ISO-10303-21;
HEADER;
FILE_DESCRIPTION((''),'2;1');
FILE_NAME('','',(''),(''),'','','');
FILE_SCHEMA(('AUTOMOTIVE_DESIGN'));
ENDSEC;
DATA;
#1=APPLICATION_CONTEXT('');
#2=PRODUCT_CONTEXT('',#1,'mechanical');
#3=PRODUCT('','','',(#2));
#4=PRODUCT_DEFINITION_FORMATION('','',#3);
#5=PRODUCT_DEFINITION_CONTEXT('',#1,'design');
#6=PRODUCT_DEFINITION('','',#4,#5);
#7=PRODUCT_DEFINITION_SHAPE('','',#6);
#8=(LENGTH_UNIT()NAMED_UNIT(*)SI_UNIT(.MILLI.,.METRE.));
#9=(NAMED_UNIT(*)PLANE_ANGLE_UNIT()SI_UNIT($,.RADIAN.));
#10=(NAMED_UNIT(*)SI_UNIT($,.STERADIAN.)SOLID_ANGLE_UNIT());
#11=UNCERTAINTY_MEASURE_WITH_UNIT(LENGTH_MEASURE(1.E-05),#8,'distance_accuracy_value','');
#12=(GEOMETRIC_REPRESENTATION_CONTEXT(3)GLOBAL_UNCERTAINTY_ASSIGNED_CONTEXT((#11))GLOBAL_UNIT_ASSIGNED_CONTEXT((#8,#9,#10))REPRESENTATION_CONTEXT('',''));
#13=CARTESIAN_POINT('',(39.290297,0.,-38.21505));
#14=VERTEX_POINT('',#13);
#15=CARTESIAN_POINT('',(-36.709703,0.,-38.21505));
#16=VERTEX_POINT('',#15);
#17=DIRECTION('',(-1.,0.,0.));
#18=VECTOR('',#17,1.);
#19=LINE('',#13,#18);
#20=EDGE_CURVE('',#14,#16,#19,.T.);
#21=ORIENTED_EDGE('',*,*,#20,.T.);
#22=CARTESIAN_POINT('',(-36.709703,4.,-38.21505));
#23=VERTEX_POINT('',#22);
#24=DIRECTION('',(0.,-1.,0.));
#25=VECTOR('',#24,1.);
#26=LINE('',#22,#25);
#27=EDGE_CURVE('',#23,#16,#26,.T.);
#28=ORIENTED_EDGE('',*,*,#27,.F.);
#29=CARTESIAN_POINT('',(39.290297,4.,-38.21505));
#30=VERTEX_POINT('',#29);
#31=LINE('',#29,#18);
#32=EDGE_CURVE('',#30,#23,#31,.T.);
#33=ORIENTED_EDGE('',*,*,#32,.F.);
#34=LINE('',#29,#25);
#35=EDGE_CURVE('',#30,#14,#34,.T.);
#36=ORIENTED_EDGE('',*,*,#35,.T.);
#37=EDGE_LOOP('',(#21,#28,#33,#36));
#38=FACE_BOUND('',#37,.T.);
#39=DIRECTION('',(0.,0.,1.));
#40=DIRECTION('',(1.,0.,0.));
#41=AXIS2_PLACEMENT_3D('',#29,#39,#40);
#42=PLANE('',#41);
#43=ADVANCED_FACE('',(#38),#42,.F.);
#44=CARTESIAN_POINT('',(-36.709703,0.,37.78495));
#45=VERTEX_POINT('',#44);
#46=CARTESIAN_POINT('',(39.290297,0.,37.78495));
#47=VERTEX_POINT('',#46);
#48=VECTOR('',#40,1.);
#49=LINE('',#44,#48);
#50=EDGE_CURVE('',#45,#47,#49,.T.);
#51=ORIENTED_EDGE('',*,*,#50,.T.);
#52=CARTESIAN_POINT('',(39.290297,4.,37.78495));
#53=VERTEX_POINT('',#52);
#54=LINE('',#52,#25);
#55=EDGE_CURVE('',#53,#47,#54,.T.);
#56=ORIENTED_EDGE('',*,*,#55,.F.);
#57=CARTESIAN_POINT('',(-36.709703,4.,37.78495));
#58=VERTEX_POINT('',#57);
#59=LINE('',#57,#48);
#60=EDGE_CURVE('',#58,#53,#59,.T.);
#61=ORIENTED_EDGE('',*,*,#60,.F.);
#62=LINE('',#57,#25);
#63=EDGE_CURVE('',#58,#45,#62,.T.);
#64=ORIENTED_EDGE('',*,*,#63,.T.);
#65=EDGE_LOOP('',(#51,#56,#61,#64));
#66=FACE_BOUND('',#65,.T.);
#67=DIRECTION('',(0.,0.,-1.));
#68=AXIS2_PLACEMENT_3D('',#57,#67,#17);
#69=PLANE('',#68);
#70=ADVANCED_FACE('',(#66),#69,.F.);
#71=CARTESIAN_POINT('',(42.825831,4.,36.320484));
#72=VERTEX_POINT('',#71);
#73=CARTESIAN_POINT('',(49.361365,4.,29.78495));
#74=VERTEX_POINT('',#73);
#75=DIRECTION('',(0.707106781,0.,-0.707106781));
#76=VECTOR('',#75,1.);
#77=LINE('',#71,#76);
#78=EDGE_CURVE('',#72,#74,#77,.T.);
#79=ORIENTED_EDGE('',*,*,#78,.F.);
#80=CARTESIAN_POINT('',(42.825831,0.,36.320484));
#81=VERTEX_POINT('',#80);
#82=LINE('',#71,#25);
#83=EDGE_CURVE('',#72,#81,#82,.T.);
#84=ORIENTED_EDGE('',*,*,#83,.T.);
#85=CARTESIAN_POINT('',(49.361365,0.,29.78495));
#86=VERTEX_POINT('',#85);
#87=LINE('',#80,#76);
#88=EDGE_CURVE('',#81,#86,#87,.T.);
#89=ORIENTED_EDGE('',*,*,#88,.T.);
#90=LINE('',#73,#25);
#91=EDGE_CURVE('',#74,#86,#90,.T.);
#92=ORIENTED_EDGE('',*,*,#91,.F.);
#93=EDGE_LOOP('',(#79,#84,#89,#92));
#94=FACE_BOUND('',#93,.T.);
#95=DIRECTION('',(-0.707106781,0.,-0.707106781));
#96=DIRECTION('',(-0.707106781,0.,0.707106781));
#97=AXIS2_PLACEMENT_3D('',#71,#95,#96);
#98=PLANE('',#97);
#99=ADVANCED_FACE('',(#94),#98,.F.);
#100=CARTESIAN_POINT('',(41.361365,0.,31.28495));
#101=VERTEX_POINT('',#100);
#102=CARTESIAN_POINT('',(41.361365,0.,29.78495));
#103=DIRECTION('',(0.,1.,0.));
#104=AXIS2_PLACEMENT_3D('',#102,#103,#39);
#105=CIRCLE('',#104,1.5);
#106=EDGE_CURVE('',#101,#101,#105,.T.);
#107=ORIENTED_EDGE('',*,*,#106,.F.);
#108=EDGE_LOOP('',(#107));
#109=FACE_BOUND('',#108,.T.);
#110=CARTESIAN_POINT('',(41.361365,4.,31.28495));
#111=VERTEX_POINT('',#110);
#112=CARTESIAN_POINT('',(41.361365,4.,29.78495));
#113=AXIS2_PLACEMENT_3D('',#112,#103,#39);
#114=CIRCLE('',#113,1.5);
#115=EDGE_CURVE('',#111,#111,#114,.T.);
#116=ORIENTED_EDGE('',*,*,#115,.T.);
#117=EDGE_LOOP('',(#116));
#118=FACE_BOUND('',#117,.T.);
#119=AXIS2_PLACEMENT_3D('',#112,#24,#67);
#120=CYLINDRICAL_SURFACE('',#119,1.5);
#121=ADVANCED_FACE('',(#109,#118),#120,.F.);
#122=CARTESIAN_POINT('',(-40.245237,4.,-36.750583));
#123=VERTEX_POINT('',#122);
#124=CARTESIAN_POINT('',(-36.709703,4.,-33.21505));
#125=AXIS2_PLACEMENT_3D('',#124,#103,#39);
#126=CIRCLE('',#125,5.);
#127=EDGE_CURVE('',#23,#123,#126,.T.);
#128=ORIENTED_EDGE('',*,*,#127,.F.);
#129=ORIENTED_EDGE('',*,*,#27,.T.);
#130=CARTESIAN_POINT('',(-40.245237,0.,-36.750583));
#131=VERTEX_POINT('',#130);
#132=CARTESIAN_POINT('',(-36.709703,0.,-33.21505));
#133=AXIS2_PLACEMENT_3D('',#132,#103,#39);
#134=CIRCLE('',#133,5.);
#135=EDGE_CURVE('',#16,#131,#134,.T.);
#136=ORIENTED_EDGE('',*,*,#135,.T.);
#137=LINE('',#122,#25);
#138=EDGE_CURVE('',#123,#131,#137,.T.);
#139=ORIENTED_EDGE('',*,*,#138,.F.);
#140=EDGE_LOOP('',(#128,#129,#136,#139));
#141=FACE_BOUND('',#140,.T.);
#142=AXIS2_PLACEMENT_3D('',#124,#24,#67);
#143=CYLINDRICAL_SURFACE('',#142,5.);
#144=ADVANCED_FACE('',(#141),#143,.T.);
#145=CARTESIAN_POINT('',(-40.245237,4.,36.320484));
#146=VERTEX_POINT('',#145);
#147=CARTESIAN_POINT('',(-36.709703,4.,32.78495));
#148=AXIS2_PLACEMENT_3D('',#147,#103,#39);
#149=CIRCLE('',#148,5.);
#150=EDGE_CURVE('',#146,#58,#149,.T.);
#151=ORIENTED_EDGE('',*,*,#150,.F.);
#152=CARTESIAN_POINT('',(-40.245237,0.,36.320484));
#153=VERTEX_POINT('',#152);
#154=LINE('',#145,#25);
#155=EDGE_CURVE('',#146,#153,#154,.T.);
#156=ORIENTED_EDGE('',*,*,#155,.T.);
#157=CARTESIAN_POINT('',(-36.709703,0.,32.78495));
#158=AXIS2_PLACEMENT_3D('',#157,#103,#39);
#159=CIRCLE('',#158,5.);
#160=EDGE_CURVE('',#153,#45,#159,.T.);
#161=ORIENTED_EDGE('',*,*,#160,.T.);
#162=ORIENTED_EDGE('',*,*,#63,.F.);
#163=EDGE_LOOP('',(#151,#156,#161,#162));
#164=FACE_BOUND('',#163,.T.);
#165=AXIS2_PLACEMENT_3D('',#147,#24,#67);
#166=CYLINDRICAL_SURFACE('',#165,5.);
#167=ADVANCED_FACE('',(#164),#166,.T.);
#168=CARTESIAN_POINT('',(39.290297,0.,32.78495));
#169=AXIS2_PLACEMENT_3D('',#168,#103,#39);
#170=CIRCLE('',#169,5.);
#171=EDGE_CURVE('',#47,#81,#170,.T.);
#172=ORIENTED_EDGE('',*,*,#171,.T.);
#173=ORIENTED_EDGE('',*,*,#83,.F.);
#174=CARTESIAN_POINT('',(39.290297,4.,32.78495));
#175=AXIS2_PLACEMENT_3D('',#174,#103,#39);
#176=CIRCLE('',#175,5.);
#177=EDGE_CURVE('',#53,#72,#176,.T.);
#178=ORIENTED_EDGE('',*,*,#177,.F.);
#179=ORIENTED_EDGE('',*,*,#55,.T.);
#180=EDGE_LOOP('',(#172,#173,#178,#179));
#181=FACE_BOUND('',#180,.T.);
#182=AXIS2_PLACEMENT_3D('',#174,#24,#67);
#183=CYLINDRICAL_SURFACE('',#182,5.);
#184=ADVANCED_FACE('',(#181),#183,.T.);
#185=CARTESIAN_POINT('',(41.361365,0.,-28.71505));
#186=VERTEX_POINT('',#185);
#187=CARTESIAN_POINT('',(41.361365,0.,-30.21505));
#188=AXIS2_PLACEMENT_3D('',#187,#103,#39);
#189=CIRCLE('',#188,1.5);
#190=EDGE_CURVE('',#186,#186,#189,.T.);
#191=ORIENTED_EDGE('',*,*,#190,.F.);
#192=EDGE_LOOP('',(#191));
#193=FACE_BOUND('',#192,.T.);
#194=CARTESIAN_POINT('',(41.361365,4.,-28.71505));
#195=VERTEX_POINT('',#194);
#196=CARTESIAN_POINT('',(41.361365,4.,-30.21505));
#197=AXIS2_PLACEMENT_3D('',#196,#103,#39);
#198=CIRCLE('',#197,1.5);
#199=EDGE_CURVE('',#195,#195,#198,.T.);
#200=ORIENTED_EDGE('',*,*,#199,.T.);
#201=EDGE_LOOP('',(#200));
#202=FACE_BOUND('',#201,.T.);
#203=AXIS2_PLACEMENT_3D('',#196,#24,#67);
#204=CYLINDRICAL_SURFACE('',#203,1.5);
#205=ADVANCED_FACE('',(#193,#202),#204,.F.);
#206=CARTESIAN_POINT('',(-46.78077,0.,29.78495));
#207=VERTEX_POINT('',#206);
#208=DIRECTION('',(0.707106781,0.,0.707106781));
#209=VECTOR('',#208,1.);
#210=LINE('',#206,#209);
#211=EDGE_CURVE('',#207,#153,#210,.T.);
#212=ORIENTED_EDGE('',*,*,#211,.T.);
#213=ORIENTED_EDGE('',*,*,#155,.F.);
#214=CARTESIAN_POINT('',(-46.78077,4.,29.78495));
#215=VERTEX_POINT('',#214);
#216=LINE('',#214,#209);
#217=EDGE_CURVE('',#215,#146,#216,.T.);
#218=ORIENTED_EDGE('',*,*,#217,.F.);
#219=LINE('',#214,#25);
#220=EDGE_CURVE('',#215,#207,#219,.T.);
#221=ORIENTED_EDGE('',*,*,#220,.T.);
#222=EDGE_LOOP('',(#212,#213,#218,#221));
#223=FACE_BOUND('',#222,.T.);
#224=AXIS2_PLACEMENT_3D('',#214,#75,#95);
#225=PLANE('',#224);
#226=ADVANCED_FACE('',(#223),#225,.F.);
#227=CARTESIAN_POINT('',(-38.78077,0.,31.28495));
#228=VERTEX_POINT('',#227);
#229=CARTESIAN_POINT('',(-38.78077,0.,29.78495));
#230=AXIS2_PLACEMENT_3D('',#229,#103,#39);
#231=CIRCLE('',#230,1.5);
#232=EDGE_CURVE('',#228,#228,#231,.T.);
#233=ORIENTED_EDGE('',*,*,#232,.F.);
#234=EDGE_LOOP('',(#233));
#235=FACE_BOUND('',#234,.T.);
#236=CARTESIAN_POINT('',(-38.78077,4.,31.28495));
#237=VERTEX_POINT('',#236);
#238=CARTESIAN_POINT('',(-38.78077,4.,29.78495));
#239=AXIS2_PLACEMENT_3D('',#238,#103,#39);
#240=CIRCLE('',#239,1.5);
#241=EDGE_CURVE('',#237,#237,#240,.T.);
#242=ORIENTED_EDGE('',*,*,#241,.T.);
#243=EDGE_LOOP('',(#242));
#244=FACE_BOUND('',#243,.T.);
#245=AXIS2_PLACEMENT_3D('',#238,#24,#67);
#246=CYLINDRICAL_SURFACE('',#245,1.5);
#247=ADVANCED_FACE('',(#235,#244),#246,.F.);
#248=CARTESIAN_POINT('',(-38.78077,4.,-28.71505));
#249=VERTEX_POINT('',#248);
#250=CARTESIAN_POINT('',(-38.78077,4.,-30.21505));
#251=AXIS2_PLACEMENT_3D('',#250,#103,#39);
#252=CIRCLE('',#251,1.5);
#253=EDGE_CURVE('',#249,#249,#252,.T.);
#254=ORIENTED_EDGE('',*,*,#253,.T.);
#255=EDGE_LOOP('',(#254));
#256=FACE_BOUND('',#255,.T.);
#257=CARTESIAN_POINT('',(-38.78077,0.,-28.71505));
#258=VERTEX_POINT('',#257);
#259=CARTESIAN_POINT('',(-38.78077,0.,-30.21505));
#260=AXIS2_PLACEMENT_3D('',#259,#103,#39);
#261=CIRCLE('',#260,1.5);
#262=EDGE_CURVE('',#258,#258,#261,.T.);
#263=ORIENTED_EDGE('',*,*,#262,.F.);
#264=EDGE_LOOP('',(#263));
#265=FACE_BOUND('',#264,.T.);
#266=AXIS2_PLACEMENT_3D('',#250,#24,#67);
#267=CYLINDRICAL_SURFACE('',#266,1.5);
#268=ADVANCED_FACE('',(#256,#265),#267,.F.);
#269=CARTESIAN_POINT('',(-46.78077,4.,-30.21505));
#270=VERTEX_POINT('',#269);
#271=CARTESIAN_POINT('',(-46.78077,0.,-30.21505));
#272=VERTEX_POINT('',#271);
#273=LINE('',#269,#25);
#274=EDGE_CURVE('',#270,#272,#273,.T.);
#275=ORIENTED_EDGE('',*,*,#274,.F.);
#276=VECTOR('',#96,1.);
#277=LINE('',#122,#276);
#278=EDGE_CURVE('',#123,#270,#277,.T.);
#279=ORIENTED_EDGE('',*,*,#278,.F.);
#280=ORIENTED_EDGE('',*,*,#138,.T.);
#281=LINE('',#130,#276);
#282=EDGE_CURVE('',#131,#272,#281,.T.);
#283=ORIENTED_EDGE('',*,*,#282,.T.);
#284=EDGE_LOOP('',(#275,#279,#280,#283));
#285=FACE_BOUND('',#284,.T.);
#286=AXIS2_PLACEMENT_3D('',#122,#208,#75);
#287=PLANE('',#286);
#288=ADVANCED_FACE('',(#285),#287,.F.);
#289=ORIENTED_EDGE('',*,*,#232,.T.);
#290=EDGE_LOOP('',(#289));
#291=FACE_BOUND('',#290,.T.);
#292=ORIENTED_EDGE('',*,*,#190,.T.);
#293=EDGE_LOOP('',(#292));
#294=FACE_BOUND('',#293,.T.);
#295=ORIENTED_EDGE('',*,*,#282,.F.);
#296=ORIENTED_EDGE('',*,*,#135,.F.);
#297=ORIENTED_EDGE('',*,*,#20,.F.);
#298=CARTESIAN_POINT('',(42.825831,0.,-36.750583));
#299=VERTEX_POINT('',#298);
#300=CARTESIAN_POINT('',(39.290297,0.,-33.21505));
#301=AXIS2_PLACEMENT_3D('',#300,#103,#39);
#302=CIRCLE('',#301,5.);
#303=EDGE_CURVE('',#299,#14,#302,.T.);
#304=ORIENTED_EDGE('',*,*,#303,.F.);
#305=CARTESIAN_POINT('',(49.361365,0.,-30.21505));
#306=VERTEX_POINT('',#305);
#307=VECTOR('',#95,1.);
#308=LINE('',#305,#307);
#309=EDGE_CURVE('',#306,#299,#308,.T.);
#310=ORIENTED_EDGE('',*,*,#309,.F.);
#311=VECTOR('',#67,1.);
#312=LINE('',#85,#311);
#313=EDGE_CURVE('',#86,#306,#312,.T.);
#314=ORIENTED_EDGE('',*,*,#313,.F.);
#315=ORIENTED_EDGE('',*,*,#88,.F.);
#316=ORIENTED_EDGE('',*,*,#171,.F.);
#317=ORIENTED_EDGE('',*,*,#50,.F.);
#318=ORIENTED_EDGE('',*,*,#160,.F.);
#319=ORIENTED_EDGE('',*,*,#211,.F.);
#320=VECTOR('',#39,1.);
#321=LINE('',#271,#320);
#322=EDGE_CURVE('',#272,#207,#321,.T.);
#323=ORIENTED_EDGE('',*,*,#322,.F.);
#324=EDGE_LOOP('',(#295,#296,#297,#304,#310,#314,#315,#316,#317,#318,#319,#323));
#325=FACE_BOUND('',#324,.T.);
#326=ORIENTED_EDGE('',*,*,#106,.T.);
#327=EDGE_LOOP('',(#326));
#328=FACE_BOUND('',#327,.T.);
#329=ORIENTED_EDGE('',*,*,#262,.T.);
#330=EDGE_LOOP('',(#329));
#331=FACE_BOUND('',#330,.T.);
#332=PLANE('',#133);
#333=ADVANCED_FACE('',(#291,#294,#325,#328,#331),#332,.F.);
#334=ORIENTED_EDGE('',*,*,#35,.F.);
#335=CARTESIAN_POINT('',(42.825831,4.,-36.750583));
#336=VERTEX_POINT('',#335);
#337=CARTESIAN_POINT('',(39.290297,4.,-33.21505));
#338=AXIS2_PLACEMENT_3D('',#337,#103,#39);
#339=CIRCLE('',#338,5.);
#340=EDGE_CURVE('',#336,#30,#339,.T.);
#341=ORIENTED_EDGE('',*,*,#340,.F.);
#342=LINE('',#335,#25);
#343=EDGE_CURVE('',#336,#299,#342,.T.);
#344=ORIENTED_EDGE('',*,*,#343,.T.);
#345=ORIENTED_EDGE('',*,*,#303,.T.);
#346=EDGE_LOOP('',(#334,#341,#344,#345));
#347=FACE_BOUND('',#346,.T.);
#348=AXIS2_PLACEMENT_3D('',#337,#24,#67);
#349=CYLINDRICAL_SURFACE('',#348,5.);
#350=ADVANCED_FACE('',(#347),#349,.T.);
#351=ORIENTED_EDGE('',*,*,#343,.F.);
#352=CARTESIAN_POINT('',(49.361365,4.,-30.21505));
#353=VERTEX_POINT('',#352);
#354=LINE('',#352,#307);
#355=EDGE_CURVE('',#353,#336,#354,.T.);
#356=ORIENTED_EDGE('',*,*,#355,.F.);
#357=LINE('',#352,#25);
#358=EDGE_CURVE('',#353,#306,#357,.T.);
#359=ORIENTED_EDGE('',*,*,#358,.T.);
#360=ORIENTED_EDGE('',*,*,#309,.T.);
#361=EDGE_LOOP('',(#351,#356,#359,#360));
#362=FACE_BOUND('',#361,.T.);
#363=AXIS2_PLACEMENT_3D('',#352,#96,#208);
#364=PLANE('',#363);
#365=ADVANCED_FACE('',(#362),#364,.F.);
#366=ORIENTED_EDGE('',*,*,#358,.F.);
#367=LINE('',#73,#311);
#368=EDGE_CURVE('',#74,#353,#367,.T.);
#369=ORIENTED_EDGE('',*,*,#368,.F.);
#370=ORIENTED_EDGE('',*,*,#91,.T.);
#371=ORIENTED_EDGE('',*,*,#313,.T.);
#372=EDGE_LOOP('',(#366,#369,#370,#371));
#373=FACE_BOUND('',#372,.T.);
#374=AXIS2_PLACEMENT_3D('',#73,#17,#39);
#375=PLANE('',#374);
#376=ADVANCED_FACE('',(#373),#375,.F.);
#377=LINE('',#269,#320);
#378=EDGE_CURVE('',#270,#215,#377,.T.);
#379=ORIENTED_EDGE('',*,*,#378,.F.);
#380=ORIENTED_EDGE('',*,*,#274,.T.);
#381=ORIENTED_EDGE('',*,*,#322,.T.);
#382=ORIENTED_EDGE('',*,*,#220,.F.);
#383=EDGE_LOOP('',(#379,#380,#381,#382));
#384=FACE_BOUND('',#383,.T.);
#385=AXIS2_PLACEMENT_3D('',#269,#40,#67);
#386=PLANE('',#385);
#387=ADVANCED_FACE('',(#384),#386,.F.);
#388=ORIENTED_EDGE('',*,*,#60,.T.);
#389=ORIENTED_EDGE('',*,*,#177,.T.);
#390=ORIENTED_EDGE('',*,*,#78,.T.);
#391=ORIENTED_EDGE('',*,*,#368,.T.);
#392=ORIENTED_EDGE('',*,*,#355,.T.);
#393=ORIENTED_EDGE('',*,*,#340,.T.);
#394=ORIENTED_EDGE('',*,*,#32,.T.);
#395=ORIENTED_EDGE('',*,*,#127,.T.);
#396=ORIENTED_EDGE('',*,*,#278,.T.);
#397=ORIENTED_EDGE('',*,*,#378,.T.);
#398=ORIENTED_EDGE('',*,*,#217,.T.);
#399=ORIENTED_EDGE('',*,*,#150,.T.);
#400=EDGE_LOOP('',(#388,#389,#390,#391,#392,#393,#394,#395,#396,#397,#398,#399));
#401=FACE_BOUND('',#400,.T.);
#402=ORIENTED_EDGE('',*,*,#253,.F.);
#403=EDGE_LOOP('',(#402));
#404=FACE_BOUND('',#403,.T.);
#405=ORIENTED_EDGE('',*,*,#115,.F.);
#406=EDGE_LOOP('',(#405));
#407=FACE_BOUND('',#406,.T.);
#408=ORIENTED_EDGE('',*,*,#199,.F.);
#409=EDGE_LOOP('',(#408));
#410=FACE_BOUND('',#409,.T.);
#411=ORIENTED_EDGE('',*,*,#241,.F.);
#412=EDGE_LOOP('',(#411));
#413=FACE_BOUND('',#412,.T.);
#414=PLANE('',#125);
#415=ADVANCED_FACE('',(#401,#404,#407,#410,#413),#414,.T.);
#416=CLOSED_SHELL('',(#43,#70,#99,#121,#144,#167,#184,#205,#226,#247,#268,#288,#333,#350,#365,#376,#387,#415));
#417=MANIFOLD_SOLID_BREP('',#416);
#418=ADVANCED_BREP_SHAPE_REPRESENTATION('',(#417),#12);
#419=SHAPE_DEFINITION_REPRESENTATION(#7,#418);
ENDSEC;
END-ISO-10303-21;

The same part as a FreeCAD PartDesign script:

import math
import FreeCAD as App
import Part
import Sketcher
from FreeCAD import Vector
Q = App.Units.Quantity

doc = App.newDocument("Part")
body = doc.addObject("PartDesign::Body", "Body")

# Sketch on XZ plane
sketch1 = doc.addObject("Sketcher::SketchObject", "Sketch")
body.addObject(sketch1)
sketch1.AttachmentSupport = (doc.XZ_Plane, [""])
sketch1.MapMode = "FlatFace"
sketch1.addGeometry([
    Part.LineSegment(Vector(-40.2, -36.8, 0), Vector(-46.8, -30.2, 0)),  # 0
    Part.LineSegment(Vector(-46.8, -30.2, 0), Vector(-46.8, 29.8, 0)),  # 1
    Part.LineSegment(Vector(-46.8, 29.8, 0), Vector(-40.2, 36.3, 0)),  # 2
    Part.ArcOfCircle(Part.Circle(Vector(-36.7, 32.8, 0), Vector(0, 0, 1), 5), math.radians(90), math.radians(135)),  # 3
    Part.LineSegment(Vector(-36.7, 37.8, 0), Vector(39.3, 37.8, 0)),  # 4
    Part.ArcOfCircle(Part.Circle(Vector(39.3, 32.8, 0), Vector(0, 0, 1), 5), math.radians(45), math.radians(90)),  # 5
    Part.LineSegment(Vector(42.8, 36.3, 0), Vector(49.4, 29.8, 0)),  # 6
    Part.LineSegment(Vector(49.4, 29.8, 0), Vector(49.4, -30.2, 0)),  # 7
    Part.LineSegment(Vector(49.4, -30.2, 0), Vector(42.8, -36.8, 0)),  # 8
    Part.ArcOfCircle(Part.Circle(Vector(39.3, -33.2, 0), Vector(0, 0, 1), 5), math.radians(-90), math.radians(-45)),  # 9
    Part.LineSegment(Vector(39.3, -38.2, 0), Vector(-36.7, -38.2, 0)),  # 10
    Part.ArcOfCircle(Part.Circle(Vector(-36.7, -33.2, 0), Vector(0, 0, 1), 5), math.radians(-135), math.radians(-90)),  # 11
    Part.Circle(Vector(-38.8, 29.8, 0), Vector(0, 0, 1), 1.5),  # 12
    Part.Circle(Vector(41.4, 29.8, 0), Vector(0, 0, 1), 1.5),  # 13
    Part.Circle(Vector(-38.8, -30.2, 0), Vector(0, 0, 1), 1.5),  # 14
    Part.Circle(Vector(41.4, -30.2, 0), Vector(0, 0, 1), 1.5),  # 15
], False)
sketch1.addConstraint([
    Sketcher.Constraint("Coincident", 0, 2, 1, 1),
    Sketcher.Constraint("Coincident", 1, 2, 2, 1),
    Sketcher.Constraint("Tangent", 2, 2, 3, 2),
    Sketcher.Constraint("Tangent", 3, 1, 4, 1),
    Sketcher.Constraint("Tangent", 4, 2, 5, 2),
    Sketcher.Constraint("Tangent", 5, 1, 6, 1),
    Sketcher.Constraint("Coincident", 6, 2, 7, 1),
    Sketcher.Constraint("Coincident", 7, 2, 8, 1),
    Sketcher.Constraint("Tangent", 8, 2, 9, 2),
    Sketcher.Constraint("Tangent", 9, 1, 10, 1),
    Sketcher.Constraint("Tangent", 10, 2, 11, 2),
    Sketcher.Constraint("Tangent", 11, 1, 0, 1),
    Sketcher.Constraint("Vertical", 1),
    Sketcher.Constraint("Horizontal", 4),
    Sketcher.Constraint("Vertical", 7),
    Sketcher.Constraint("Horizontal", 10),
    Sketcher.Constraint("Equal", 3, 5),
    Sketcher.Constraint("Equal", 5, 9),
    Sketcher.Constraint("Equal", 9, 11),
    Sketcher.Constraint("Equal", 12, 13),
    Sketcher.Constraint("Equal", 13, 14),
    Sketcher.Constraint("Equal", 14, 15),
    Sketcher.Constraint("Perpendicular", 0, 2),
    Sketcher.Constraint("Perpendicular", 2, 6),
    Sketcher.Constraint("Perpendicular", 6, 8),
    Sketcher.Constraint("Horizontal", 12, 3, 13, 3),
    Sketcher.Constraint("Horizontal", 14, 3, 15, 3),
    Sketcher.Constraint("Horizontal", 15, 3, 0, 2),
    Sketcher.Constraint("Horizontal", 13, 3, 1, 2),
    Sketcher.Constraint("Horizontal", 2, 2, 5, 1),
    Sketcher.Constraint("Horizontal", 1, 2, 6, 2),
    Sketcher.Constraint("Horizontal", 0, 2, 7, 2),
    Sketcher.Constraint("Vertical", 5, 3, 9, 3),
    Sketcher.Constraint("Vertical", 12, 3, 14, 3),
    Sketcher.Constraint("Vertical", 13, 3, 15, 3),
    Sketcher.Constraint("Diameter", 12, Q("3 mm")),
    Sketcher.Constraint("Radius", 3, Q("5 mm")),
    Sketcher.Constraint("DistanceX", 4, 1, 4, 2, Q("76 mm")),
    Sketcher.Constraint("DistanceY", 1, 1, 1, 2, Q("60 mm")),
    Sketcher.Constraint("DistanceY", 9, 3, 5, 3, Q("66 mm")),
    Sketcher.Constraint("DistanceX", 0, 2, 14, 3, Q("8 mm")),
    Sketcher.Constraint("DistanceX", 13, 3, 6, 2, Q("8 mm")),
    Sketcher.Constraint("DistanceY", -1, 1, 3, 3, Q("32.78495 mm")),
    Sketcher.Constraint("DistanceX", 12, 3, -1, 1, Q("38.78077 mm")),
])
pad1 = doc.addObject("PartDesign::Pad", "Pad")
body.addObject(pad1)
pad1.Profile = sketch1
pad1.Length = 4
pad1.Reversed = True

doc.recompute()
